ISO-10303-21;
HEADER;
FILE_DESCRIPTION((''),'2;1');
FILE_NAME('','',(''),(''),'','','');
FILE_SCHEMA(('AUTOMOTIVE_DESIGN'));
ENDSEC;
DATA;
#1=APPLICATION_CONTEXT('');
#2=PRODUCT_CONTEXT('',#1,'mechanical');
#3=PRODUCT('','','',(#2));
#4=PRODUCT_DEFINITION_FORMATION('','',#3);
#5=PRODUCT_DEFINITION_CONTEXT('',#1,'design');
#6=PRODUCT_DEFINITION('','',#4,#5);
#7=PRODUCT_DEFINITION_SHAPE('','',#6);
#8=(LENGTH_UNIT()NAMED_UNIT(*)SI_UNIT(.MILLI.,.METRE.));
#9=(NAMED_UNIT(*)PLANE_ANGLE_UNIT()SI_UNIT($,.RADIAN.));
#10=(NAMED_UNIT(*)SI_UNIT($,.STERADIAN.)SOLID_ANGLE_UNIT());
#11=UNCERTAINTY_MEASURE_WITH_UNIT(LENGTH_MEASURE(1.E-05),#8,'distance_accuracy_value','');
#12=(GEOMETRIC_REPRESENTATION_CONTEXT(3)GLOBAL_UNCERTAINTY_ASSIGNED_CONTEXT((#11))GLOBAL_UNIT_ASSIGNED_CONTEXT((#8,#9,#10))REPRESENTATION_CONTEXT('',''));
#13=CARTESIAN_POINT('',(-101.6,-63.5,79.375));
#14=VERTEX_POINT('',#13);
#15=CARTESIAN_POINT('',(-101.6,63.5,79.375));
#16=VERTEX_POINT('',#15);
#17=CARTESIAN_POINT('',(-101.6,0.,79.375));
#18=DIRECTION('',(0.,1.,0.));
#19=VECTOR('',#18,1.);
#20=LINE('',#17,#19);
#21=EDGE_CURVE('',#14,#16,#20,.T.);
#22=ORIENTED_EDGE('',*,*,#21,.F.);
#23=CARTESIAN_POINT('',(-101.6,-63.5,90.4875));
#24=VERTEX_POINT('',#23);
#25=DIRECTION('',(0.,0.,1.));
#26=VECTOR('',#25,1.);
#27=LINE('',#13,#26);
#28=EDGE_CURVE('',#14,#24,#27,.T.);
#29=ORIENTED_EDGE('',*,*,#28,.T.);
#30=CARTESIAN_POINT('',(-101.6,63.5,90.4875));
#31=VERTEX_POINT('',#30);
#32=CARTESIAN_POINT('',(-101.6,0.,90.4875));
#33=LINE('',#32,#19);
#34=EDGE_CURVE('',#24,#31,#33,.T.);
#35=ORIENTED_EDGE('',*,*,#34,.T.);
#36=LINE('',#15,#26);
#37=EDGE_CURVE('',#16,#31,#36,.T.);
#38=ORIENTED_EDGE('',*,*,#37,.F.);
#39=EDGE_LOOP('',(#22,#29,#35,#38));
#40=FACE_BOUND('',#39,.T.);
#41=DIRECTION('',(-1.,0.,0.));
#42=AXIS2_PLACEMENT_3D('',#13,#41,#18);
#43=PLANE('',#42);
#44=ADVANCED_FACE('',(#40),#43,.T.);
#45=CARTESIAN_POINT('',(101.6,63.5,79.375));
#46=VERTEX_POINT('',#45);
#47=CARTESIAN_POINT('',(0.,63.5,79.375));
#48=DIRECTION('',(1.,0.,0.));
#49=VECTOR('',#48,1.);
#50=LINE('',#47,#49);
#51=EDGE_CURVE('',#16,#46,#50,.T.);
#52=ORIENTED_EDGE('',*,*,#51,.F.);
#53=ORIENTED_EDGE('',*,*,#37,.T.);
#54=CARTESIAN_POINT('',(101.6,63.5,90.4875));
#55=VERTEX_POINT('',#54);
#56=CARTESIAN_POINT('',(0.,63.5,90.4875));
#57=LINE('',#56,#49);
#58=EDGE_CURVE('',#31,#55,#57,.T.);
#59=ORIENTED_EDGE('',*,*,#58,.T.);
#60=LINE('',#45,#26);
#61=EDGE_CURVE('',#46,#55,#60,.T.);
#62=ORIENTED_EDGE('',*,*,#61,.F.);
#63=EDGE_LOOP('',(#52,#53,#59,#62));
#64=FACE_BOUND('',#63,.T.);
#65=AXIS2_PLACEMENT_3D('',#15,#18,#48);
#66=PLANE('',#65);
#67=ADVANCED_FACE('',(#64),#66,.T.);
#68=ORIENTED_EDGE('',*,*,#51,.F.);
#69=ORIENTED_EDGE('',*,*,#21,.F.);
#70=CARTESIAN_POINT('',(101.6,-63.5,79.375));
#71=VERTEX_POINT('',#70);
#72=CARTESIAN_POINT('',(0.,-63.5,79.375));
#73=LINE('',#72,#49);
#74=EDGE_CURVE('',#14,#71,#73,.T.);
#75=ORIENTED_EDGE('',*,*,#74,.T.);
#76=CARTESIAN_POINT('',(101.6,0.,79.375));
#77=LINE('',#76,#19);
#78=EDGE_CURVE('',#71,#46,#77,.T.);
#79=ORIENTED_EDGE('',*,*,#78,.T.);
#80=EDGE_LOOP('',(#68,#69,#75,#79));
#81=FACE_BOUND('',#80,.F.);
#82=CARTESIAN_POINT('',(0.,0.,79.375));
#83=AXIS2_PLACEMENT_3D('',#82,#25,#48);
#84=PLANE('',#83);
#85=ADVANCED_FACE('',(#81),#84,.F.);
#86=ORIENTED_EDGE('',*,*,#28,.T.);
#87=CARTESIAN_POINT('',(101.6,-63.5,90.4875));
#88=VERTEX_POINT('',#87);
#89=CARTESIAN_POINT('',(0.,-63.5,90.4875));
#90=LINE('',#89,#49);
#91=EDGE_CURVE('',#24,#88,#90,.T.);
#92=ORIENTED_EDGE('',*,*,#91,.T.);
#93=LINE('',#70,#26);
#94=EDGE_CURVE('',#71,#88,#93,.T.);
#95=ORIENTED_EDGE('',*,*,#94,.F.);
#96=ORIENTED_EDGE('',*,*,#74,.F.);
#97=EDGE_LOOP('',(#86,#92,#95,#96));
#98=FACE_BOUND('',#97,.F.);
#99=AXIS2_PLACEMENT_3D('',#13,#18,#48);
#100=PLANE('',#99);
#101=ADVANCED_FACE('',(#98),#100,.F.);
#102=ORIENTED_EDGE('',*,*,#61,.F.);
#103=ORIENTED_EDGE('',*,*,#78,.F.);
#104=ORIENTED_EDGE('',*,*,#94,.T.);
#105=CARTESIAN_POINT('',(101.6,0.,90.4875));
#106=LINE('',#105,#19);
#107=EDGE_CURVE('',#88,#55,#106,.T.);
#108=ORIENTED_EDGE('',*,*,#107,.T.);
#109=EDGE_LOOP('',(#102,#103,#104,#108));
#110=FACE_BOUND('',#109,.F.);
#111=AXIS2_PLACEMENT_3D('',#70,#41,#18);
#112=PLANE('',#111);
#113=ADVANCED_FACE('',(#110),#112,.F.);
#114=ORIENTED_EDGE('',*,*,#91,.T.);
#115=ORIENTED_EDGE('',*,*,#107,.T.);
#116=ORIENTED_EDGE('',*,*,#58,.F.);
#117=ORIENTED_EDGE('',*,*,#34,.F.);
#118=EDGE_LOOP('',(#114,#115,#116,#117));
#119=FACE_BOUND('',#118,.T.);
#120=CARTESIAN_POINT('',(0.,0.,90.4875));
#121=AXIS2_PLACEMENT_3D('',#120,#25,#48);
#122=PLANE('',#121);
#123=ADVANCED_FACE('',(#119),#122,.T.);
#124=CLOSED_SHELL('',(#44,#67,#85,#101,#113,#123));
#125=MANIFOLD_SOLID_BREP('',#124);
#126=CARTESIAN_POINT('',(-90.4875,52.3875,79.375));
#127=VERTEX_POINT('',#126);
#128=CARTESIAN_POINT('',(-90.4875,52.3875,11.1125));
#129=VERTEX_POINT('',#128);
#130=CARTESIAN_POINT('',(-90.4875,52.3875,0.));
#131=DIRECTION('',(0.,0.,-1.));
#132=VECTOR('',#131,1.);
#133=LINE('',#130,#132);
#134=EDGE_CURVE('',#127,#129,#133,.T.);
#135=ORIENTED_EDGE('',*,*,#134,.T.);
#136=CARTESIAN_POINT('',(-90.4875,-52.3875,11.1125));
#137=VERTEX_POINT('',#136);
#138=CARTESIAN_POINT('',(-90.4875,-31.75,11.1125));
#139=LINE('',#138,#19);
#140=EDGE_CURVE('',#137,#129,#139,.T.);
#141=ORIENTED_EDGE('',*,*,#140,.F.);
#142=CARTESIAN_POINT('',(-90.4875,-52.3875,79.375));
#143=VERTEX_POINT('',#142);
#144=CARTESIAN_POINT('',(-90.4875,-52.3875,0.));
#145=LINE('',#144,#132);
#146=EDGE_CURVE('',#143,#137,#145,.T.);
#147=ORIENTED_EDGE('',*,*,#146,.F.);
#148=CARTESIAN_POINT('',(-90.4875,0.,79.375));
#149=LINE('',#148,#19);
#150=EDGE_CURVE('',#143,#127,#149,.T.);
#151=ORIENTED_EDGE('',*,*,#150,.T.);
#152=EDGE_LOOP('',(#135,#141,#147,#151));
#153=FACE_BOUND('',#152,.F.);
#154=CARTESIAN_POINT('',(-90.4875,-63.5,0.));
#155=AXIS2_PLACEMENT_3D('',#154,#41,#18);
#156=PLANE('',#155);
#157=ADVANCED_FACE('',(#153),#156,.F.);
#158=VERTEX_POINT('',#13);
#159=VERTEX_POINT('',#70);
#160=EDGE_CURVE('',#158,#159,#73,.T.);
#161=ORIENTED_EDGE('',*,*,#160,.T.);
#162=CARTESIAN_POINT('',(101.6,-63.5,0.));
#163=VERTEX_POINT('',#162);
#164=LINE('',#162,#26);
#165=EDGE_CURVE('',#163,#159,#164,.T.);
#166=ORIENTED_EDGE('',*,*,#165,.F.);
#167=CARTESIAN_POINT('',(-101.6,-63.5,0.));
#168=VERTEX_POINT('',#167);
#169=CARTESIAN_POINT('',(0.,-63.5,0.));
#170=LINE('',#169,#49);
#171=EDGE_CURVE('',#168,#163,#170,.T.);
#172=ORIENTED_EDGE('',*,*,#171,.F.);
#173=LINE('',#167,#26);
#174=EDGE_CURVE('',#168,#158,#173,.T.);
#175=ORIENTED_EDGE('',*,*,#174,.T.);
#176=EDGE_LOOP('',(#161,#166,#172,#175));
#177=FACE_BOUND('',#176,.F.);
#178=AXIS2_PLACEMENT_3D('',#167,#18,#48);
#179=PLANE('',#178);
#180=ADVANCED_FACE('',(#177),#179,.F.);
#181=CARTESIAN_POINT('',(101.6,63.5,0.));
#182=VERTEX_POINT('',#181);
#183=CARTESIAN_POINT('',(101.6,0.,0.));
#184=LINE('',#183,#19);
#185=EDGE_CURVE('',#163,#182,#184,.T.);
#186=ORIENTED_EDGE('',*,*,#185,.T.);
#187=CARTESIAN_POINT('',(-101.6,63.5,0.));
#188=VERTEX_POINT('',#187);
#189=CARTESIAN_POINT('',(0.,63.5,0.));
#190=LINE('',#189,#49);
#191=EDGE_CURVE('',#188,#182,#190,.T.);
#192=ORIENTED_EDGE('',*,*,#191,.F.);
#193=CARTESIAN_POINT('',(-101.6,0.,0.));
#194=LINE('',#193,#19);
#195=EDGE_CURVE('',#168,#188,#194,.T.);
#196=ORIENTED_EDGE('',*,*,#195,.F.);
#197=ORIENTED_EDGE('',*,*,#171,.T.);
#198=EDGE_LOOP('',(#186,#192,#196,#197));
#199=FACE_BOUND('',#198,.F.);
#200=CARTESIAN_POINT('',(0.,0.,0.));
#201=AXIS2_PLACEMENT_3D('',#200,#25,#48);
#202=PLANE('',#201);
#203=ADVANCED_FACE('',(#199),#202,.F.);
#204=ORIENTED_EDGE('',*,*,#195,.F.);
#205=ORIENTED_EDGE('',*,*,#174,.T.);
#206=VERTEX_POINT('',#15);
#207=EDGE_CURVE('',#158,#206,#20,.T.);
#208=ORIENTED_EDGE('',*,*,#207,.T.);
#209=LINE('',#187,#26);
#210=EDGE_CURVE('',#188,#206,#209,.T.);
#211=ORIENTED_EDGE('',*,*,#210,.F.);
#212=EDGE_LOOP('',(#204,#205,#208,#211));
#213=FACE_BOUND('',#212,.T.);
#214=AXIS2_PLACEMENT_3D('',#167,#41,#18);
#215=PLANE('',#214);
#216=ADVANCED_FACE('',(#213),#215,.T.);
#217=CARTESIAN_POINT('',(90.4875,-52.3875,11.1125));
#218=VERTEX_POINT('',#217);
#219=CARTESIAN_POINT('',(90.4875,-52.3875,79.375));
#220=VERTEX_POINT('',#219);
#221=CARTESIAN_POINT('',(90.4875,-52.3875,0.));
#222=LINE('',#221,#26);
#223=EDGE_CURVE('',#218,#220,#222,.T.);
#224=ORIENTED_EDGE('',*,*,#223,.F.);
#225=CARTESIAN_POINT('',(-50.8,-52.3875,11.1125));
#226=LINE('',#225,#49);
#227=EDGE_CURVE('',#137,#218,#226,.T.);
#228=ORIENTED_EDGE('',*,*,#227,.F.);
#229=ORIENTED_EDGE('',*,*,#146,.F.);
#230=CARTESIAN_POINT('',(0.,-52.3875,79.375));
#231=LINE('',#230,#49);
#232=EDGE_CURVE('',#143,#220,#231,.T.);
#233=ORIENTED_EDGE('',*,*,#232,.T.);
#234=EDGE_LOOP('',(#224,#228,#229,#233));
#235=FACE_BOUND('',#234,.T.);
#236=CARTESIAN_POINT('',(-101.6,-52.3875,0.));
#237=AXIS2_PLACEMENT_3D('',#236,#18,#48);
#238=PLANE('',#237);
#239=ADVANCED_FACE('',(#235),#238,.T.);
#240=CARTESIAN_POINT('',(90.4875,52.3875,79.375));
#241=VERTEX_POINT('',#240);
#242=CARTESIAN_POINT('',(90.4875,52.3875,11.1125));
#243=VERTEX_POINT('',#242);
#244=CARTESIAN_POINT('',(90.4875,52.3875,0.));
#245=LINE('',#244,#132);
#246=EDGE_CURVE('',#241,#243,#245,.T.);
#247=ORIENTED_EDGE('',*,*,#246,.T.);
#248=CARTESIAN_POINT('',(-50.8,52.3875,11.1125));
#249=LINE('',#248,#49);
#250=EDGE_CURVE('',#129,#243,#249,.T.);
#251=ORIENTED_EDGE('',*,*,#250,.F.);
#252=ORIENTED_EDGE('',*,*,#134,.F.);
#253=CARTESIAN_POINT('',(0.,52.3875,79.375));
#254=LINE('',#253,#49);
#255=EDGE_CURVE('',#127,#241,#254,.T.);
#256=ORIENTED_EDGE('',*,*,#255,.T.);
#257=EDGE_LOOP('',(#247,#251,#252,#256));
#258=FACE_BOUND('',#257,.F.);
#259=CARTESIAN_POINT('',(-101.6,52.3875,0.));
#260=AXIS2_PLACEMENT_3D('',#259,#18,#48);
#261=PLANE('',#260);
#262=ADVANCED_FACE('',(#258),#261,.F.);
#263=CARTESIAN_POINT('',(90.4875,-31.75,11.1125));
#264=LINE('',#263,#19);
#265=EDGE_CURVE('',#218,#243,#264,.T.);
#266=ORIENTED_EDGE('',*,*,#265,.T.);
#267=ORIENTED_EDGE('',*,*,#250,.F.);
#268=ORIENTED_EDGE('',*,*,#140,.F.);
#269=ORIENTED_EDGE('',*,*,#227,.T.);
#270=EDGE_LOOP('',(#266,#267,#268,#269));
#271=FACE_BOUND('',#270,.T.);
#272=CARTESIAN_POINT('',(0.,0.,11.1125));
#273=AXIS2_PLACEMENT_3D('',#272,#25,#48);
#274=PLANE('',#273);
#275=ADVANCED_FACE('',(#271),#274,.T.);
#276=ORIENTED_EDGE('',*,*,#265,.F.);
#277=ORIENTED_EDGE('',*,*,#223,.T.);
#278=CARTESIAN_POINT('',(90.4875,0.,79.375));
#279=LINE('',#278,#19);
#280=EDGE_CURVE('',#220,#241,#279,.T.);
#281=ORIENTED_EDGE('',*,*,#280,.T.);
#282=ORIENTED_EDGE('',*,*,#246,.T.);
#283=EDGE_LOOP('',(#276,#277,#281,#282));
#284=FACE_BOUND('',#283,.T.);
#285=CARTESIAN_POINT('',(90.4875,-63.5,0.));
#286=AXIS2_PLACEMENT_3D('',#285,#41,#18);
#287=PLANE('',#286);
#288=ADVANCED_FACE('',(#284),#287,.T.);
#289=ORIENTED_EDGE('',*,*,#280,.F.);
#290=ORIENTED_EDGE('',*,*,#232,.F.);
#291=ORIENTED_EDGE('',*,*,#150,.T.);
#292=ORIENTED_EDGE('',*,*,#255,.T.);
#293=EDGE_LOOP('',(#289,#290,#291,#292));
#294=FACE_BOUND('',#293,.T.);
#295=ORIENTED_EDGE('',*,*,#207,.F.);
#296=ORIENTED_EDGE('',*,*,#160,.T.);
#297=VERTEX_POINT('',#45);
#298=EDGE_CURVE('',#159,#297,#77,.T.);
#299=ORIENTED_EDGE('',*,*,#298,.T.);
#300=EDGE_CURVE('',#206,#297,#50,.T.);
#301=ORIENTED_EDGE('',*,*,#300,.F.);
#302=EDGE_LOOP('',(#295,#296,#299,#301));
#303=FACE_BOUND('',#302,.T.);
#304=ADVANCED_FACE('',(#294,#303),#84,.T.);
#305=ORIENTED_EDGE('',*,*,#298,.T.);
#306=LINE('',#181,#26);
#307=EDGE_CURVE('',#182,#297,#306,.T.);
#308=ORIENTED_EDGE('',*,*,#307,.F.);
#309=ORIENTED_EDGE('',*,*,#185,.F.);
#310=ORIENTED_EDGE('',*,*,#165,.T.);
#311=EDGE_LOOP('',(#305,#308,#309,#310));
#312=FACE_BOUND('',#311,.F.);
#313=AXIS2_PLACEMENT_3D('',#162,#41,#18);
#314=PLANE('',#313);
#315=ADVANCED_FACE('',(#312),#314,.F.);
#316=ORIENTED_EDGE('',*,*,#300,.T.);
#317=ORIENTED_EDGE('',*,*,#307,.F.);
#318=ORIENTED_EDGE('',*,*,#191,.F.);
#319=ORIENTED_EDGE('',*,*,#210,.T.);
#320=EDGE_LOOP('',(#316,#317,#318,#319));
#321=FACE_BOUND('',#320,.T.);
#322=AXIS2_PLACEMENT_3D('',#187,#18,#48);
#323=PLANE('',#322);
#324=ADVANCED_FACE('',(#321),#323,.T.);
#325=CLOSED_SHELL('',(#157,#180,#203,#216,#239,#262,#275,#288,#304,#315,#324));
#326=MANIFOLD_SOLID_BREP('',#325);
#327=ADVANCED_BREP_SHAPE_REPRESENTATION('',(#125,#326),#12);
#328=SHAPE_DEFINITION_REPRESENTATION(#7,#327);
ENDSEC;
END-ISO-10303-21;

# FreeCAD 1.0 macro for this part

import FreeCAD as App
import Part
import Sketcher
from FreeCAD import Vector
Q = App.Units.Quantity


def faces_at(feature, points):
    """Names of the faces that lie closest to the given points."""
    faces = feature.Shape.Faces
    near = lambda p: min(range(len(faces)), key=lambda i: faces[i].distToShape(Part.Vertex(*p))[0])
    return sorted({f"Face{near(p) + 1}" for p in points})

doc = App.newDocument("Part")
body = doc.addObject("PartDesign::Body", "Body")

sketch1 = body.newObject("Sketcher::SketchObject", "Sketch")
sketch1.AttachmentSupport = (doc.getObject("XY_Plane"), [""])
sketch1.MapMode = "FlatFace"
sketch1.addGeometry([
    Part.LineSegment(Vector(-102, 64, 0), Vector(-102, -64, 0)),
    Part.LineSegment(Vector(-102, -64, 0), Vector(102, -64, 0)),
    Part.LineSegment(Vector(102, -64, 0), Vector(102, 64, 0)),
    Part.LineSegment(Vector(102, 64, 0), Vector(-102, 64, 0)),
], False)
sketch1.addConstraint([
    Sketcher.Constraint("Coincident", 0, 2, 1, 1),
    Sketcher.Constraint("Coincident", 1, 2, 2, 1),
    Sketcher.Constraint("Coincident", 2, 2, 3, 1),
    Sketcher.Constraint("Coincident", 3, 2, 0, 1),
    Sketcher.Constraint("Vertical", 0),
    Sketcher.Constraint("Horizontal", 1),
    Sketcher.Constraint("Vertical", 2),
    Sketcher.Constraint("Horizontal", 3),
    Sketcher.Constraint("Symmetric", 0, 2, 2, 2, -1, 1),
    Sketcher.Constraint("DistanceX", 1, 1, 1, 2, Q("8 in")),
    Sketcher.Constraint("DistanceY", 0, 2, 0, 1, Q("5 in")),
])
pad1 = body.newObject("PartDesign::Pad", "Pad")
pad1.Profile = sketch1
pad1.Length = Q("3.125 in")
doc.recompute()

thickness = body.newObject("PartDesign::Thickness", "Thickness")
thickness.Base = (pad1, faces_at(pad1, [(0, 0, 79.375)]))
thickness.Value = Q("0.4375 in")
thickness.Reversed = True
thickness.Join = "Arc"
body2 = doc.addObject("PartDesign::Body", "Body001")

sketch2 = body2.newObject("Sketcher::SketchObject", "Sketch001")
sketch2.AttachmentSupport = (doc.getObject("XY_Plane001"), [""])
sketch2.MapMode = "FlatFace"
sketch2.AttachmentOffset = App.Placement(Vector(0, 0, 3.125 * 25.4), App.Rotation())
sketch2.addGeometry([
    Part.LineSegment(Vector(-102, 64, 0), Vector(-102, -64, 0)),
    Part.LineSegment(Vector(-102, -64, 0), Vector(102, -64, 0)),
    Part.LineSegment(Vector(102, -64, 0), Vector(102, 64, 0)),
    Part.LineSegment(Vector(102, 64, 0), Vector(-102, 64, 0)),
], False)
sketch2.addConstraint([
    Sketcher.Constraint("Coincident", 0, 2, 1, 1),
    Sketcher.Constraint("Coincident", 1, 2, 2, 1),
    Sketcher.Constraint("Coincident", 2, 2, 3, 1),
    Sketcher.Constraint("Coincident", 3, 2, 0, 1),
    Sketcher.Constraint("Vertical", 0),
    Sketcher.Constraint("Horizontal", 1),
    Sketcher.Constraint("Vertical", 2),
    Sketcher.Constraint("Horizontal", 3),
    Sketcher.Constraint("Symmetric", 0, 2, 2, 2, -1, 1),
    Sketcher.Constraint("DistanceX", 1, 1, 1, 2, Q("8 in")),
    Sketcher.Constraint("DistanceY", 0, 2, 0, 1, Q("5 in")),
])
pad2 = body2.newObject("PartDesign::Pad", "Pad001")
pad2.Profile = sketch2
pad2.Length = Q("0.4375 in")

doc.recompute()
